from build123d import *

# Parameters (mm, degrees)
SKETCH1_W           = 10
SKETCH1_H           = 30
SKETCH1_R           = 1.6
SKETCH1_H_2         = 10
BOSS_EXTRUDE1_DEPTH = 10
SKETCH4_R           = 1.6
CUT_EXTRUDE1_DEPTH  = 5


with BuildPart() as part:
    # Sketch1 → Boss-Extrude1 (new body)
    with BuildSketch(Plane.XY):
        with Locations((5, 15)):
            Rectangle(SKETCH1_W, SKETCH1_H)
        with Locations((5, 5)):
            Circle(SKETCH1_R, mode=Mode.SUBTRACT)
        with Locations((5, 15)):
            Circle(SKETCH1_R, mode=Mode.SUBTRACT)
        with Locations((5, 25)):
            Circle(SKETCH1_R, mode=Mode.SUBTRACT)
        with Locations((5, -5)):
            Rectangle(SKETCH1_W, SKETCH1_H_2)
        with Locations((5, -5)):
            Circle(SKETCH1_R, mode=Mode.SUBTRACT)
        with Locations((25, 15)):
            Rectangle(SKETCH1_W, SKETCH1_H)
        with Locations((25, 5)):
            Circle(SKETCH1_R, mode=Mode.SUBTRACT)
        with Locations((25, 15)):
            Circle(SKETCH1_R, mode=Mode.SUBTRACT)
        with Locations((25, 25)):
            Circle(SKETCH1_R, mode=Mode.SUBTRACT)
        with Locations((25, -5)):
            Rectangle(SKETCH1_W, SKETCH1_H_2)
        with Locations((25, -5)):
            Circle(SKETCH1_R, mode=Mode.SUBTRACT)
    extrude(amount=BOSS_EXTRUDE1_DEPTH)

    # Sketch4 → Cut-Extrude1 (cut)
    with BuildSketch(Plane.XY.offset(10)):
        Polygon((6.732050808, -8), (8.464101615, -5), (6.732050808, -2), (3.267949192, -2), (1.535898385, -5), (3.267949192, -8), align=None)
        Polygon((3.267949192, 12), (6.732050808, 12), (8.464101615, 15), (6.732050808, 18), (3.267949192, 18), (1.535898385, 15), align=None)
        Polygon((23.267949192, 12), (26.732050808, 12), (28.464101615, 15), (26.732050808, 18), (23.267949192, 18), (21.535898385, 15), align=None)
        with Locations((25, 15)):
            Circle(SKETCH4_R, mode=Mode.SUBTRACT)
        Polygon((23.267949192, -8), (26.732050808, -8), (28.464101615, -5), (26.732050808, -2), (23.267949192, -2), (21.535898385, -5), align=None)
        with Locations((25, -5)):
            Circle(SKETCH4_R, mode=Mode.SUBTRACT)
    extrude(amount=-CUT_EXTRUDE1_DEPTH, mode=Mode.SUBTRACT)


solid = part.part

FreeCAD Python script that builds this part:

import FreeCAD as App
import Part
import Sketcher
Q = App.Units.Quantity

doc = App.newDocument("Part")
body = doc.addObject("PartDesign::Body", "Body")
body.AllowCompound = True

sketch1 = doc.addObject("Sketcher::SketchObject", "Sketch")
body.addObject(sketch1)
sketch1.AttachmentSupport = (doc.XY_Plane, [""])
sketch1.MapMode = "FlatFace"
sketch1.addGeometry(Part.LineSegment(App.Vector(0, 30, 0), App.Vector(0, -10, 0)), False)
sketch1.addGeometry(Part.LineSegment(App.Vector(0, -10, 0), App.Vector(10, -10, 0)), False)
sketch1.addGeometry(Part.LineSegment(App.Vector(10, -10, 0), App.Vector(10, 30, 0)), False)
sketch1.addGeometry(Part.LineSegment(App.Vector(10, 30, 0), App.Vector(0, 30, 0)), False)
sketch1.addGeometry(Part.Circle(App.Vector(5, -5, 0), App.Vector(0, 0, 1), 1.6), False)
sketch1.addGeometry(Part.Circle(App.Vector(5, 5, 0), App.Vector(0, 0, 1), 1.6), False)
sketch1.addGeometry(Part.Circle(App.Vector(5, 15, 0), App.Vector(0, 0, 1), 1.6), False)
sketch1.addGeometry(Part.Circle(App.Vector(5, 25, 0), App.Vector(0, 0, 1), 1.6), False)
sketch1.addGeometry(Part.LineSegment(App.Vector(20, 30, 0), App.Vector(20, -10, 0)), False)
sketch1.addGeometry(Part.LineSegment(App.Vector(20, -10, 0), App.Vector(30, -10, 0)), False)
sketch1.addGeometry(Part.LineSegment(App.Vector(30, -10, 0), App.Vector(30, 30, 0)), False)
sketch1.addGeometry(Part.LineSegment(App.Vector(30, 30, 0), App.Vector(20, 30, 0)), False)
sketch1.addGeometry(Part.Circle(App.Vector(25, -5, 0), App.Vector(0, 0, 1), 1.6), False)
sketch1.addGeometry(Part.Circle(App.Vector(25, 5, 0), App.Vector(0, 0, 1), 1.6), False)
sketch1.addGeometry(Part.Circle(App.Vector(25, 15, 0), App.Vector(0, 0, 1), 1.6), False)
sketch1.addGeometry(Part.Circle(App.Vector(25, 25, 0), App.Vector(0, 0, 1), 1.6), False)
sketch1.addConstraint(Sketcher.Constraint("Coincident", 0, 2, 1, 1))
sketch1.addConstraint(Sketcher.Constraint("Coincident", 1, 2, 2, 1))
sketch1.addConstraint(Sketcher.Constraint("Coincident", 2, 2, 3, 1))
sketch1.addConstraint(Sketcher.Constraint("Coincident", 3, 2, 0, 1))
sketch1.addConstraint(Sketcher.Constraint("Coincident", 8, 2, 9, 1))
sketch1.addConstraint(Sketcher.Constraint("Coincident", 9, 2, 10, 1))
sketch1.addConstraint(Sketcher.Constraint("Coincident", 10, 2, 11, 1))
sketch1.addConstraint(Sketcher.Constraint("Coincident", 11, 2, 8, 1))
sketch1.addConstraint(Sketcher.Constraint("Vertical", 0))
sketch1.addConstraint(Sketcher.Constraint("Horizontal", 1))
sketch1.addConstraint(Sketcher.Constraint("Vertical", 2))
sketch1.addConstraint(Sketcher.Constraint("Horizontal", 3))
sketch1.addConstraint(Sketcher.Constraint("Vertical", 8))
sketch1.addConstraint(Sketcher.Constraint("Horizontal", 9))
sketch1.addConstraint(Sketcher.Constraint("Vertical", 10))
sketch1.addConstraint(Sketcher.Constraint("Horizontal", 11))
sketch1.addConstraint(Sketcher.Constraint("Equal", 4, 5))
sketch1.addConstraint(Sketcher.Constraint("Equal", 5, 6))
sketch1.addConstraint(Sketcher.Constraint("Equal", 6, 7))
sketch1.addConstraint(Sketcher.Constraint("Equal", 7, 12))
sketch1.addConstraint(Sketcher.Constraint("Equal", 12, 13))
sketch1.addConstraint(Sketcher.Constraint("Equal", 13, 14))
sketch1.addConstraint(Sketcher.Constraint("Equal", 14, 15))
sketch1.addConstraint(Sketcher.Constraint("Symmetric", 4, 3, 5, 3, -1))
sketch1.addConstraint(Sketcher.Constraint("Symmetric", 12, 3, 13, 3, -1))
sketch1.addConstraint(Sketcher.Constraint("PointOnObject", 0, 2, -2))
sketch1.addConstraint(Sketcher.Constraint("Horizontal", 4, 3, 12, 3))
sketch1.addConstraint(Sketcher.Constraint("Horizontal", 6, 3, 14, 3))
sketch1.addConstraint(Sketcher.Constraint("Horizontal", 7, 3, 15, 3))
sketch1.addConstraint(Sketcher.Constraint("Horizontal", 1, 2, 8, 2))
sketch1.addConstraint(Sketcher.Constraint("Horizontal", 3, 2, 10, 2))
sketch1.addConstraint(Sketcher.Constraint("Vertical", 5, 3, 6, 3))
sketch1.addConstraint(Sketcher.Constraint("Vertical", 6, 3, 7, 3))
sketch1.addConstraint(Sketcher.Constraint("Vertical", 13, 3, 14, 3))
sketch1.addConstraint(Sketcher.Constraint("Vertical", 14, 3, 15, 3))
sketch1.addConstraint(Sketcher.Constraint("Equal", 3, 9))
sketch1.addConstraint(Sketcher.Constraint("Diameter", 4, 3.2))
sketch1.addConstraint(Sketcher.Constraint("DistanceX", 1, 1, 1, 2, 10.0))
sketch1.addConstraint(Sketcher.Constraint("DistanceY", 0, 2, 0, 1, 40.0))
sketch1.addConstraint(Sketcher.Constraint("DistanceX", -1, 1, 4, 3, 5.0))
sketch1.addConstraint(Sketcher.Constraint("DistanceY", 4, 3, -1, 1, 5.0))
sketch1.addConstraint(Sketcher.Constraint("DistanceY", -1, 1, 6, 3, 15.0))
sketch1.addConstraint(Sketcher.Constraint("DistanceY", -1, 1, 7, 3, 25.0))
sketch1.addConstraint(Sketcher.Constraint("DistanceX", -1, 1, 12, 3, 25.0))
sketch1.addConstraint(Sketcher.Constraint("DistanceY", 0, 2, -1, 1, 10.0))
sketch1.addConstraint(Sketcher.Constraint("DistanceX", -1, 1, 8, 2, 20.0))
pad1 = doc.addObject("PartDesign::Pad", "Pad")
body.addObject(pad1)
pad1.Profile = sketch1
pad1.Length = 10

sketch2 = doc.addObject("Sketcher::SketchObject", "Sketch001")
body.addObject(sketch2)
sketch2.AttachmentSupport = (doc.XY_Plane, [""])
sketch2.MapMode = "FlatFace"
sketch2.AttachmentOffset = App.Placement(App.Vector(0, 0, 10), App.Rotation())
sketch2.addGeometry(Part.LineSegment(App.Vector(6.7, -8, 0), App.Vector(8.5, -5, 0)), False)
sketch2.addGeometry(Part.LineSegment(App.Vector(8.5, -5, 0), App.Vector(6.7, -2, 0)), False)
sketch2.addGeometry(Part.LineSegment(App.Vector(6.7, -2, 0), App.Vector(3.3, -2, 0)), False)
sketch2.addGeometry(Part.LineSegment(App.Vector(3.3, -2, 0), App.Vector(1.5, -5, 0)), False)
sketch2.addGeometry(Part.LineSegment(App.Vector(1.5, -5, 0), App.Vector(3.3, -8, 0)), False)
sketch2.addGeometry(Part.LineSegment(App.Vector(3.3, -8, 0), App.Vector(6.7, -8, 0)), False)
sketch2.addGeometry(Part.LineSegment(App.Vector(3.3, 12, 0), App.Vector(6.7, 12, 0)), False)
sketch2.addGeometry(Part.LineSegment(App.Vector(6.7, 12, 0), App.Vector(8.5, 15, 0)), False)
sketch2.addGeometry(Part.LineSegment(App.Vector(8.5, 15, 0), App.Vector(6.7, 18, 0)), False)
sketch2.addGeometry(Part.LineSegment(App.Vector(6.7, 18, 0), App.Vector(3.3, 18, 0)), False)
sketch2.addGeometry(Part.LineSegment(App.Vector(3.3, 18, 0), App.Vector(1.5, 15, 0)), False)
sketch2.addGeometry(Part.LineSegment(App.Vector(1.5, 15, 0), App.Vector(3.3, 12, 0)), False)
sketch2.addGeometry(Part.LineSegment(App.Vector(23.3, 12, 0), App.Vector(26.7, 12, 0)), False)
sketch2.addGeometry(Part.LineSegment(App.Vector(26.7, 12, 0), App.Vector(28.5, 15, 0)), False)
sketch2.addGeometry(Part.LineSegment(App.Vector(28.5, 15, 0), App.Vector(26.7, 18, 0)), False)
sketch2.addGeometry(Part.LineSegment(App.Vector(26.7, 18, 0), App.Vector(23.3, 18, 0)), False)
sketch2.addGeometry(Part.LineSegment(App.Vector(23.3, 18, 0), App.Vector(21.5, 15, 0)), False)
sketch2.addGeometry(Part.LineSegment(App.Vector(21.5, 15, 0), App.Vector(23.3, 12, 0)), False)
sketch2.addGeometry(Part.Circle(App.Vector(25, 15, 0), App.Vector(0, 0, 1), 1.6), False)
sketch2.addGeometry(Part.LineSegment(App.Vector(23.3, -8, 0), App.Vector(26.7, -8, 0)), False)
sketch2.addGeometry(Part.LineSegment(App.Vector(26.7, -8, 0), App.Vector(28.5, -5, 0)), False)
sketch2.addGeometry(Part.LineSegment(App.Vector(28.5, -5, 0), App.Vector(26.7, -2, 0)), False)
sketch2.addGeometry(Part.LineSegment(App.Vector(26.7, -2, 0), App.Vector(23.3, -2, 0)), False)
sketch2.addGeometry(Part.LineSegment(App.Vector(23.3, -2, 0), App.Vector(21.5, -5, 0)), False)
sketch2.addGeometry(Part.LineSegment(App.Vector(21.5, -5, 0), App.Vector(23.3, -8, 0)), False)
sketch2.addGeometry(Part.Circle(App.Vector(25, -5, 0), App.Vector(0, 0, 1), 1.6), False)
sketch2.addConstraint(Sketcher.Constraint("Coincident", 0, 2, 1, 1))
sketch2.addConstraint(Sketcher.Constraint("Coincident", 1, 2, 2, 1))
sketch2.addConstraint(Sketcher.Constraint("Coincident", 2, 2, 3, 1))
sketch2.addConstraint(Sketcher.Constraint("Coincident", 3, 2, 4, 1))
sketch2.addConstraint(Sketcher.Constraint("Coincident", 4, 2, 5, 1))
sketch2.addConstraint(Sketcher.Constraint("Coincident", 5, 2, 0, 1))
sketch2.addConstraint(Sketcher.Constraint("Coincident", 6, 2, 7, 1))
sketch2.addConstraint(Sketcher.Constraint("Coincident", 7, 2, 8, 1))
sketch2.addConstraint(Sketcher.Constraint("Coincident", 8, 2, 9, 1))
sketch2.addConstraint(Sketcher.Constraint("Coincident", 9, 2, 10, 1))
sketch2.addConstraint(Sketcher.Constraint("Coincident", 10, 2, 11, 1))
sketch2.addConstraint(Sketcher.Constraint("Coincident", 11, 2, 6, 1))
sketch2.addConstraint(Sketcher.Constraint("Coincident", 12, 2, 13, 1))
sketch2.addConstraint(Sketcher.Constraint("Coincident", 13, 2, 14, 1))
sketch2.addConstraint(Sketcher.Constraint("Coincident", 14, 2, 15, 1))
sketch2.addConstraint(Sketcher.Constraint("Coincident", 15, 2, 16, 1))
sketch2.addConstraint(Sketcher.Constraint("Coincident", 16, 2, 17, 1))
sketch2.addConstraint(Sketcher.Constraint("Coincident", 17, 2, 12, 1))
sketch2.addConstraint(Sketcher.Constraint("Coincident", 19, 2, 20, 1))
sketch2.addConstraint(Sketcher.Constraint("Coincident", 20, 2, 21, 1))
sketch2.addConstraint(Sketcher.Constraint("Coincident", 21, 2, 22, 1))
sketch2.addConstraint(Sketcher.Constraint("Coincident", 22, 2, 23, 1))
sketch2.addConstraint(Sketcher.Constraint("Coincident", 23, 2, 24, 1))
sketch2.addConstraint(Sketcher.Constraint("Coincident", 24, 2, 19, 1))
sketch2.addConstraint(Sketcher.Constraint("Horizontal", 2))
sketch2.addConstraint(Sketcher.Constraint("Horizontal", 5))
sketch2.addConstraint(Sketcher.Constraint("Horizontal", 6))
sketch2.addConstraint(Sketcher.Constraint("Horizontal", 9))
sketch2.addConstraint(Sketcher.Constraint("Horizontal", 12))
sketch2.addConstraint(Sketcher.Constraint("Horizontal", 15))
sketch2.addConstraint(Sketcher.Constraint("Horizontal", 19))
sketch2.addConstraint(Sketcher.Constraint("Horizontal", 22))
sketch2.addConstraint(Sketcher.Constraint("Equal", 18, 25))
sketch2.addConstraint(Sketcher.Constraint("Parallel", 0, 3))
sketch2.addConstraint(Sketcher.Constraint("Parallel", 1, 4))
sketch2.addConstraint(Sketcher.Constraint("Parallel", 3, 7))
sketch2.addConstraint(Sketcher.Constraint("Parallel", 4, 8))
sketch2.addConstraint(Sketcher.Constraint("Parallel", 7, 10))
sketch2.addConstraint(Sketcher.Constraint("Parallel", 8, 11))
sketch2.addConstraint(Sketcher.Constraint("Parallel", 10, 13))
sketch2.addConstraint(Sketcher.Constraint("Parallel", 11, 14))
sketch2.addConstraint(Sketcher.Constraint("Parallel", 13, 16))
sketch2.addConstraint(Sketcher.Constraint("Parallel", 14, 17))
sketch2.addConstraint(Sketcher.Constraint("Parallel", 16, 20))
sketch2.addConstraint(Sketcher.Constraint("Parallel", 17, 21))
sketch2.addConstraint(Sketcher.Constraint("Parallel", 20, 23))
sketch2.addConstraint(Sketcher.Constraint("Parallel", 21, 24))
sketch2.addConstraint(Sketcher.Constraint("Horizontal", 25, 3, 0, 2))
sketch2.addConstraint(Sketcher.Constraint("Horizontal", 0, 2, 3, 2))
sketch2.addConstraint(Sketcher.Constraint("Horizontal", 18, 3, 7, 2))
sketch2.addConstraint(Sketcher.Constraint("Horizontal", 7, 2, 10, 2))
sketch2.addConstraint(Sketcher.Constraint("Horizontal", 11, 2, 12, 2))
sketch2.addConstraint(Sketcher.Constraint("Horizontal", 10, 2, 13, 2))
sketch2.addConstraint(Sketcher.Constraint("Horizontal", 9, 2, 14, 2))
sketch2.addConstraint(Sketcher.Constraint("Horizontal", 13, 2, 16, 2))
sketch2.addConstraint(Sketcher.Constraint("Horizontal", 5, 2, 19, 2))
sketch2.addConstraint(Sketcher.Constraint("Horizontal", 3, 2, 20, 2))
sketch2.addConstraint(Sketcher.Constraint("Horizontal", 2, 2, 21, 2))
sketch2.addConstraint(Sketcher.Constraint("Horizontal", 20, 2, 23, 2))
sketch2.addConstraint(Sketcher.Constraint("Vertical", 18, 3, 25, 3))
sketch2.addConstraint(Sketcher.Constraint("Vertical", 2, 2, 4, 2))
sketch2.addConstraint(Sketcher.Constraint("Vertical", 1, 2, 5, 2))
sketch2.addConstraint(Sketcher.Constraint("Vertical", 5, 2, 6, 2))
sketch2.addConstraint(Sketcher.Constraint("Vertical", 0, 2, 7, 2))
sketch2.addConstraint(Sketcher.Constraint("Vertical", 6, 2, 8, 2))
sketch2.addConstraint(Sketcher.Constraint("Vertical", 4, 2, 9, 2))
sketch2.addConstraint(Sketcher.Constraint("Vertical", 14, 2, 19, 2))
sketch2.addConstraint(Sketcher.Constraint("Vertical", 17, 2, 22, 2))
sketch2.addConstraint(Sketcher.Constraint("Equal", 9, 12))
sketch2.addConstraint(Sketcher.Constraint("Diameter", 18, 3.2))
sketch2.addConstraint(Sketcher.Constraint("Angle", 0, Q("60 deg")))
sketch2.addConstraint(Sketcher.Constraint("DistanceX", -1, 1, 18, 3, 25.0))
sketch2.addConstraint(Sketcher.Constraint("DistanceY", -1, 1, 18, 3, 15.0))
sketch2.addConstraint(Sketcher.Constraint("DistanceY", 25, 3, -1, 1, 5.0))
sketch2.addConstraint(Sketcher.Constraint("DistanceY", 1, 2, -1, 1, 2.0))
sketch2.addConstraint(Sketcher.Constraint("DistanceX", 6, 2, 12, 2, 20.0))
sketch2.addConstraint(Sketcher.Constraint("DistanceX", 2, 2, 2, 1, 3.464102))
sketch2.addConstraint(Sketcher.Constraint("DistanceX", -1, 1, 0, 2, 8.464102))
pocket1 = doc.addObject("PartDesign::Pocket", "Pocket")
body.addObject(pocket1)
pocket1.Profile = sketch2
pocket1.Length = 5

doc.recompute()
